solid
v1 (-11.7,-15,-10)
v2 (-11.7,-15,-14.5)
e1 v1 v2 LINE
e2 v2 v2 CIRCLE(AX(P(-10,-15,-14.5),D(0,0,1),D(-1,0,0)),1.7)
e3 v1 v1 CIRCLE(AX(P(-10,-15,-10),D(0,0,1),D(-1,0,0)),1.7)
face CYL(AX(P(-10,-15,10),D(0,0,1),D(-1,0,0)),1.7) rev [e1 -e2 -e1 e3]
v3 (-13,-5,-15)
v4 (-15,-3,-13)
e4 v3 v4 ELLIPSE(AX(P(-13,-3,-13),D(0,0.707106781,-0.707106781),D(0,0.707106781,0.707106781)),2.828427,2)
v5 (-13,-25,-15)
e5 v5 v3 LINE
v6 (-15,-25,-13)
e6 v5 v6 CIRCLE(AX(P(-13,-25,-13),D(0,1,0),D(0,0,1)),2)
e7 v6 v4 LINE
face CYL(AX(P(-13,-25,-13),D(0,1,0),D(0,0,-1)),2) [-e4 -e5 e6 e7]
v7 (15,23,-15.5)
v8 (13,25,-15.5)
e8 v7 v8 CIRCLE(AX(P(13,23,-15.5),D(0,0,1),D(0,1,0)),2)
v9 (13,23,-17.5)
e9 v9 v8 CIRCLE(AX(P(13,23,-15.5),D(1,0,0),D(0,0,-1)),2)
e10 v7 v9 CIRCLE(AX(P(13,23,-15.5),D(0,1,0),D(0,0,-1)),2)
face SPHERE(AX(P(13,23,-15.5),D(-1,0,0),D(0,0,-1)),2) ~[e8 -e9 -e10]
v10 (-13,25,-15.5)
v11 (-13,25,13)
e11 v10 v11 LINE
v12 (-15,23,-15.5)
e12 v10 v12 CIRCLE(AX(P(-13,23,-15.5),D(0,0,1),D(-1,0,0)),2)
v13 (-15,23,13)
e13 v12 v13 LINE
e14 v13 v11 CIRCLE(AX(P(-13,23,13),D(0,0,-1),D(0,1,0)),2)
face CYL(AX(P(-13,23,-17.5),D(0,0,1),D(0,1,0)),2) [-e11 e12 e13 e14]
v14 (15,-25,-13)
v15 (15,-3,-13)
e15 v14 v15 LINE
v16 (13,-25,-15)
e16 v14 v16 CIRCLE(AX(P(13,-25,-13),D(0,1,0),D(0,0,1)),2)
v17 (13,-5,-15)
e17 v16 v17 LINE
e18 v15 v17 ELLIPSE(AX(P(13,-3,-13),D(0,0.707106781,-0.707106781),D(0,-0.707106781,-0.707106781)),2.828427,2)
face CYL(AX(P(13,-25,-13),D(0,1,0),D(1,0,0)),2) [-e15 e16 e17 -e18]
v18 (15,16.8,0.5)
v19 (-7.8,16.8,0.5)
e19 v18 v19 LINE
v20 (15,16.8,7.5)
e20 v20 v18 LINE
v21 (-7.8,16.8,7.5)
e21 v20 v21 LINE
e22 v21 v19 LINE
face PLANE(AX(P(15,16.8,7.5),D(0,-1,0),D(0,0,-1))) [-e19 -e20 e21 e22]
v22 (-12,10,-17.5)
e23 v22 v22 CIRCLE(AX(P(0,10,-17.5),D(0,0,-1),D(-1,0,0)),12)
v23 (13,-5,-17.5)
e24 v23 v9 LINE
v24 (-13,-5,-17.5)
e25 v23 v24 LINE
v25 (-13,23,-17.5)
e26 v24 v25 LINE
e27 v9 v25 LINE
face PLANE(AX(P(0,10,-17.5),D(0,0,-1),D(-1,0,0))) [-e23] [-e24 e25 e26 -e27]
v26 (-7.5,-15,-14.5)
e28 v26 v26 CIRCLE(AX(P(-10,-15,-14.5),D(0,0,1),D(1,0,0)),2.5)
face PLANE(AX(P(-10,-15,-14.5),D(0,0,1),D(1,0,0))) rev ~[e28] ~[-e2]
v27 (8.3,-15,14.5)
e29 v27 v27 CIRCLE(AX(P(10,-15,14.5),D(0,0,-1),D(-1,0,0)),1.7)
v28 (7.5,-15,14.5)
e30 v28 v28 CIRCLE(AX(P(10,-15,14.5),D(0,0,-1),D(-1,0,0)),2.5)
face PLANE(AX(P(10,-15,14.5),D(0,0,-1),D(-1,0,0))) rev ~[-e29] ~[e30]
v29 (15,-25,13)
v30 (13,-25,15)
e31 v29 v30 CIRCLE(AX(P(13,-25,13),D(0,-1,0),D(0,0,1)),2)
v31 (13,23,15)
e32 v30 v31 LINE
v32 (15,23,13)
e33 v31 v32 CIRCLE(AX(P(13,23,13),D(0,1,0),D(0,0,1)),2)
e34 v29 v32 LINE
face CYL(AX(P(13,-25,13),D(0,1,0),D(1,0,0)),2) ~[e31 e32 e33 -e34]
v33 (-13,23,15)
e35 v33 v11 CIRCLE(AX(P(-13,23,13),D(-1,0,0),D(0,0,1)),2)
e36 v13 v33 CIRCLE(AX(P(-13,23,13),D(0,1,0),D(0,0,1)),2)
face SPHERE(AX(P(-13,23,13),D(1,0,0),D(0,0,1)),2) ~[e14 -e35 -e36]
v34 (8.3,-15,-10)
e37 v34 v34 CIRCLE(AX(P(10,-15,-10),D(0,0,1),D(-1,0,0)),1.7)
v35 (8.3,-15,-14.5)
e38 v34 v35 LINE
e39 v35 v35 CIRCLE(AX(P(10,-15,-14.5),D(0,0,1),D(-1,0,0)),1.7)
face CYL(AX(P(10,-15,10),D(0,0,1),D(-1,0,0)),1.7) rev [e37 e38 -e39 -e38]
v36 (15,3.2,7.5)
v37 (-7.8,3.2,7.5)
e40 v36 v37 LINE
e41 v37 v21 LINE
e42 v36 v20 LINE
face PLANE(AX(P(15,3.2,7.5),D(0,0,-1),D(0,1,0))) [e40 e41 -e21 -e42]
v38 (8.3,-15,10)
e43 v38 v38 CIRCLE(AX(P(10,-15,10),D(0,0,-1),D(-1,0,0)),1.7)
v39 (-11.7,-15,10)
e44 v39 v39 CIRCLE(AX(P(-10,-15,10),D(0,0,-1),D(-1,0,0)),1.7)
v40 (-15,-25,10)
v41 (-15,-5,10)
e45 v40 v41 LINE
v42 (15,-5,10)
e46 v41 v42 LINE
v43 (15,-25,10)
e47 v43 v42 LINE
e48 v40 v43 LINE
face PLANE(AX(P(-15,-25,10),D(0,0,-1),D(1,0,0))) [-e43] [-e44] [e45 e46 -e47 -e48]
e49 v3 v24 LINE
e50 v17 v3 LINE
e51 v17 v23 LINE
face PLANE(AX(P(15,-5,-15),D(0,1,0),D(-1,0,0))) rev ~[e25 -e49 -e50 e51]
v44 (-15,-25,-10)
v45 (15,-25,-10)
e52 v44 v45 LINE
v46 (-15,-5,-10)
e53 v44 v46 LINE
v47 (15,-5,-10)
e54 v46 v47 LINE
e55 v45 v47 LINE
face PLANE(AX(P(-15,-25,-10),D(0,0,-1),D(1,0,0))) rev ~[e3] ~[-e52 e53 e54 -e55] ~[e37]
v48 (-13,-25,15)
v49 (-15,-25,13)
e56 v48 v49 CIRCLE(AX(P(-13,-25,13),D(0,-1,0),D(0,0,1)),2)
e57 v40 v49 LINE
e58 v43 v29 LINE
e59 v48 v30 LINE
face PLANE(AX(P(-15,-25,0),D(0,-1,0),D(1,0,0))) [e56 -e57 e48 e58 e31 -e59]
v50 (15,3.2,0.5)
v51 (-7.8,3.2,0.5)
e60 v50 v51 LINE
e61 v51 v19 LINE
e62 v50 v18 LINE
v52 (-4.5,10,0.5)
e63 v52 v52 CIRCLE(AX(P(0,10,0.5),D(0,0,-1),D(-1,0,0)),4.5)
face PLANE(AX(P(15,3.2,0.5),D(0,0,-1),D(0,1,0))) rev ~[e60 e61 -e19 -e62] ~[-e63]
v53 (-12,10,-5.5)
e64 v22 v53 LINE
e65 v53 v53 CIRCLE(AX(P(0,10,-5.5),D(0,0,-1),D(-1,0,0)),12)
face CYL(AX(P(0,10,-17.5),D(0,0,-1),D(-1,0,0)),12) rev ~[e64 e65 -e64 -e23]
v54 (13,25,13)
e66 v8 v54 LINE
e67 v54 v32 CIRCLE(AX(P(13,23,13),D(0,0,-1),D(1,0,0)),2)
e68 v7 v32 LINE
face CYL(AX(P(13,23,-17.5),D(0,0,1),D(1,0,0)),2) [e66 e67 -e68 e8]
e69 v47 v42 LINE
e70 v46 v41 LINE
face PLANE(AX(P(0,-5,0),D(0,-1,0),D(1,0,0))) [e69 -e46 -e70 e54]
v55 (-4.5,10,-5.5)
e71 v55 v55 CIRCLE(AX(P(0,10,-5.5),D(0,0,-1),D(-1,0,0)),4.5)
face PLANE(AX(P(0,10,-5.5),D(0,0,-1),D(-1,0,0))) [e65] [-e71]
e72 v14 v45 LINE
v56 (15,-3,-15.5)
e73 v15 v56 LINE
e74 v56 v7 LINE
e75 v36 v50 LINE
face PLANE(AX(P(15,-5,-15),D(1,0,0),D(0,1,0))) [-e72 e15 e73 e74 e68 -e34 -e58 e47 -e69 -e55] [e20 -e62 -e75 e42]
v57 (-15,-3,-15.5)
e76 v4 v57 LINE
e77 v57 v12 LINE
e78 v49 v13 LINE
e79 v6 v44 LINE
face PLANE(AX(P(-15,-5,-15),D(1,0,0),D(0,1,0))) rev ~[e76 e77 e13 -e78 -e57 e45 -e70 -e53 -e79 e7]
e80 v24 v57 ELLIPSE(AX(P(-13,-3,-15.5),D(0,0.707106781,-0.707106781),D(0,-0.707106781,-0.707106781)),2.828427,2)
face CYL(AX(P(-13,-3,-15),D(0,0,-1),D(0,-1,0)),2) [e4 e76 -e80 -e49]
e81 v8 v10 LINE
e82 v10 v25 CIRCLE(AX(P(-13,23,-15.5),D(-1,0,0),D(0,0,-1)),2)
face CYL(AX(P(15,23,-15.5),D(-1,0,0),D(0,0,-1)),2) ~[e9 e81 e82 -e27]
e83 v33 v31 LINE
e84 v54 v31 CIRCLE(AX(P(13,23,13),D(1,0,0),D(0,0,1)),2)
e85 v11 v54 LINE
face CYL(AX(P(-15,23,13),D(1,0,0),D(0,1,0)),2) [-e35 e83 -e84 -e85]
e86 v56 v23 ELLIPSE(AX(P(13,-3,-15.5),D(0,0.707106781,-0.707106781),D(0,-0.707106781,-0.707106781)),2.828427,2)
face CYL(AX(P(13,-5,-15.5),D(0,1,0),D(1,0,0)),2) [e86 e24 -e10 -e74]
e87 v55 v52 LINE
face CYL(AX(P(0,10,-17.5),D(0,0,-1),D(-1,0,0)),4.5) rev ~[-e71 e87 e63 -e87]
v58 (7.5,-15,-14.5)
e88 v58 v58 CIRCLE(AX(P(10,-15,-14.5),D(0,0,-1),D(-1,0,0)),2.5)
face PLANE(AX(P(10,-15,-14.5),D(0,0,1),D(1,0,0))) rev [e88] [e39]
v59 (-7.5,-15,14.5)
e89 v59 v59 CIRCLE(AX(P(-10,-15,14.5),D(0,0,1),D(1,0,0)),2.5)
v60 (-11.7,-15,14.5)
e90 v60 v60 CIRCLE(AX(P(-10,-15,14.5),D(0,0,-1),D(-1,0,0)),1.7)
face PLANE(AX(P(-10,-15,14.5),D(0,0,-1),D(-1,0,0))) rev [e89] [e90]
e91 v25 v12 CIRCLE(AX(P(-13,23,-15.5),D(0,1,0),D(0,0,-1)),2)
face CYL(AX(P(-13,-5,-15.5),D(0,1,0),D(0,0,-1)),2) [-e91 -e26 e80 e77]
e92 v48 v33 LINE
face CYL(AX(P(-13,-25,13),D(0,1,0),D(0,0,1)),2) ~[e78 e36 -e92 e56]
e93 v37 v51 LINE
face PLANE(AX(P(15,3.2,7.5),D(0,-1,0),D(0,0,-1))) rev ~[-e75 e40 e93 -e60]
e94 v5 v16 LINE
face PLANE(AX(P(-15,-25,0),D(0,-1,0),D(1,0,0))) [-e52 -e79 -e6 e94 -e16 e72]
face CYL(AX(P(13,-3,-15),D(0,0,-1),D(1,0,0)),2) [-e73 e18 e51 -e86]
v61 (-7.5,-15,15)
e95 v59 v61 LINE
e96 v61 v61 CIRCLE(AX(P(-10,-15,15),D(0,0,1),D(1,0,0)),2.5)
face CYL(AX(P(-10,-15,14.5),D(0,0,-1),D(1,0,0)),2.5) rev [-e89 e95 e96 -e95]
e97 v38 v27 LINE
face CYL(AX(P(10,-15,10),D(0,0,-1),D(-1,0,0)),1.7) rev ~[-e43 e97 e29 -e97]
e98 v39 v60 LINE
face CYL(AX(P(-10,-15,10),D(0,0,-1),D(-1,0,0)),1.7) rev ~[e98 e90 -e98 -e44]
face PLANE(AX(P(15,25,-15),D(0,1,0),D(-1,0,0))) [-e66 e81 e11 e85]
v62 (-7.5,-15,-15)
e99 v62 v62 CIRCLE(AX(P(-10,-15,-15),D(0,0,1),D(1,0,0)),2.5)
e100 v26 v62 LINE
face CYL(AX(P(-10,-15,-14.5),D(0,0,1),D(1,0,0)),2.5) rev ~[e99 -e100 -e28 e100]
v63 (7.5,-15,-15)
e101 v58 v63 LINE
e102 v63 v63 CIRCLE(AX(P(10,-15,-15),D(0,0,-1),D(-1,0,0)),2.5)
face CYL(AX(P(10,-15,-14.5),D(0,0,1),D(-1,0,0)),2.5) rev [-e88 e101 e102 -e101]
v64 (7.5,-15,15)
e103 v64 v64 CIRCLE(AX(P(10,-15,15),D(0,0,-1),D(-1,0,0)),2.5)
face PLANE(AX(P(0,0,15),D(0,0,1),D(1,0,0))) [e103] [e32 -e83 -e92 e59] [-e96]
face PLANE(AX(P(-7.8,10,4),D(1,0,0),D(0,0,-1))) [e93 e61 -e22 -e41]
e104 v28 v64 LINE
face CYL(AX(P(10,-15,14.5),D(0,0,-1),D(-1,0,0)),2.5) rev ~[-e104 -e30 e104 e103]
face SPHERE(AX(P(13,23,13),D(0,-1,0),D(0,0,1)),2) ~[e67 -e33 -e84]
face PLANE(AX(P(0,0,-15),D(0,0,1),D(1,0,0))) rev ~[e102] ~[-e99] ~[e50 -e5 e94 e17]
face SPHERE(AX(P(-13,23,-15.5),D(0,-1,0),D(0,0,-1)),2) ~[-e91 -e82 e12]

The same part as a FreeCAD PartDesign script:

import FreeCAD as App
import Part
import Sketcher

V = App.Vector
Q = App.Units.Quantity


def edges_at(feature, points):
    """Names of the edges that pass closest to the given points."""
    edges = feature.Shape.Edges
    near = lambda p: min(range(len(edges)), key=lambda i: edges[i].distToShape(Part.Vertex(*p))[0])
    return sorted({f"Edge{near(p) + 1}" for p in points})


def add_polygon(sketch, points):
    """Adds a closed chain of lines whose ends are joined by coincident constraints."""
    first, n = sketch.GeometryCount, len(points)
    for a, b in zip(points, points[1:] + points[:1]):
        sketch.addGeometry(Part.LineSegment(App.Vector(*a, 0), App.Vector(*b, 0)), False)
    for i in range(n):
        sketch.addConstraint(Sketcher.Constraint("Coincident", first + i, 2, first + (i + 1) % n, 1))

doc = App.newDocument("Part")
params = doc.addObject("Spreadsheet::Sheet", "Params")
for row, (alias, value) in enumerate([
    ("sketch1_width", "30 mm"),
    ("sketch1_height", "50 mm"),
    ("pad1_length", "30 mm"),
    ("sketch2_width", "30 mm"),
    ("pad2_length", "2.5 mm"),
    ("sketch3_width", "30 mm"),
    ("sketch3_height", "20 mm"),
    ("pocket1_length", "20 mm"),
    ("sketch4_diameter", "3.4 mm"),
    ("sketch5_height", "7 mm"),
    ("sketch5_width", "13.6 mm"),
    ("pocket3_length", "22.8 mm"),
    ("sketch6_diameter", "5 mm"),
    ("pocket4_length", "0.5 mm"),
    ("sketch7_diameter", "5 mm"),
    ("pocket5_length", "0.5 mm"),
    ("fillet_radius", "2 mm"),
    ("sketch8_diameter", "24 mm"),
    ("sketch8_diameter2", "9 mm"),
    ("pocket6_length", "12 mm"),
    ("sketch9_diameter", "9 mm"),
], start=1):
    params.set(f"A{row}", alias)
    params.set(f"B{row}", "=" + value)
    params.setAlias(f"B{row}", alias)

body = doc.addObject("PartDesign::Body", "Body")

sketch1 = body.newObject("Sketcher::SketchObject", "Sketch")
sketch1.AttachmentSupport = (doc.getObject("XY_Plane"), [""])
sketch1.MapMode = "FlatFace"
add_polygon(sketch1, [(-15, 25), (-15, -25), (15, -25), (15, 25)])
sketch1.addConstraint(Sketcher.Constraint("Vertical", 0))
sketch1.addConstraint(Sketcher.Constraint("Horizontal", 1))
sketch1.addConstraint(Sketcher.Constraint("Vertical", 2))
sketch1.addConstraint(Sketcher.Constraint("Horizontal", 3))
sketch1.addConstraint(Sketcher.Constraint("Symmetric", 0, 2, 2, 2, -1, 1))
sketch1.addConstraint(Sketcher.Constraint("DistanceX", 1, 1, 1, 2, Q("30 mm")))
sketch1.addConstraint(Sketcher.Constraint("DistanceY", 0, 2, 0, 1, Q("50 mm")))
sketch1.setExpression("Constraints[9]", "Params.sketch1_width")
sketch1.setExpression("Constraints[10]", "Params.sketch1_height")
pad1 = body.newObject("PartDesign::Pad", "Pad")
pad1.Profile = sketch1
pad1.setExpression("Length", "Params.pad1_length")
pad1.Midplane = True

sketch2 = body.newObject("Sketcher::SketchObject", "Sketch001")
sketch2.AttachmentSupport = (doc.getObject("XY_Plane"), [""])
sketch2.MapMode = "FlatFace"
sketch2.AttachmentOffset = App.Placement(V(0, 0, -15), App.Rotation())
add_polygon(sketch2, [(15, 25), (15, -5), (-15, -5), (-15, 25)])
sketch2.addConstraint(Sketcher.Constraint("Vertical", 0))
sketch2.addConstraint(Sketcher.Constraint("Horizontal", 1))
sketch2.addConstraint(Sketcher.Constraint("Vertical", 2))
sketch2.addConstraint(Sketcher.Constraint("Horizontal", 3))
sketch2.addConstraint(Sketcher.Constraint("Equal", 3, 0))
sketch2.addConstraint(Sketcher.Constraint("DistanceX", 1, 2, 1, 1, Q("30 mm")))
sketch2.addConstraint(Sketcher.Constraint("DistanceX", -1, 1, 0, 2, Q("15 mm")))
sketch2.addConstraint(Sketcher.Constraint("DistanceY", 0, 2, -1, 1, Q("5 mm")))
sketch2.setExpression("Constraints[9]", "Params.sketch2_width")
pad2 = body.newObject("PartDesign::Pad", "Pad001")
pad2.Profile = sketch2
pad2.setExpression("Length", "Params.pad2_length")
pad2.Reversed = True

sketch3 = body.newObject("Sketcher::SketchObject", "Sketch002")
sketch3.AttachmentSupport = (doc.getObject("XZ_Plane"), [""])
sketch3.MapMode = "FlatFace"
sketch3.AttachmentOffset = App.Placement(V(0, 0, 25), App.Rotation())
add_polygon(sketch3, [(-15, 10), (-15, -10), (15, -10), (15, 10)])
sketch3.addConstraint(Sketcher.Constraint("Vertical", 0))
sketch3.addConstraint(Sketcher.Constraint("Horizontal", 1))
sketch3.addConstraint(Sketcher.Constraint("Vertical", 2))
sketch3.addConstraint(Sketcher.Constraint("Horizontal", 3))
sketch3.addConstraint(Sketcher.Constraint("Symmetric", 0, 2, 2, 2, -1, 1))
sketch3.addConstraint(Sketcher.Constraint("DistanceX", 1, 1, 1, 2, Q("30 mm")))
sketch3.addConstraint(Sketcher.Constraint("DistanceY", 0, 2, 0, 1, Q("20 mm")))
sketch3.setExpression("Constraints[9]", "Params.sketch3_width")
sketch3.setExpression("Constraints[10]", "Params.sketch3_height")
pocket1 = body.newObject("PartDesign::Pocket", "Pocket")
pocket1.Profile = sketch3
pocket1.setExpression("Length", "Params.pocket1_length")

sketch4 = body.newObject("Sketcher::SketchObject", "Sketch003")
sketch4.AttachmentSupport = (doc.getObject("XY_Plane"), [""])
sketch4.MapMode = "FlatFace"
sketch4.AttachmentOffset = App.Placement(V(0, 0, 10), App.Rotation())
sketch4.addGeometry(Part.Circle(V(10, -15, 0), V(0, 0, 1), 1.7), False)
sketch4.addGeometry(Part.Circle(V(-10, -15, 0), V(0, 0, 1), 1.7), False)
sketch4.addConstraint(Sketcher.Constraint("Equal", 0, 1))
sketch4.addConstraint(Sketcher.Constraint("Symmetric", 0, 3, 1, 3, -2))
sketch4.addConstraint(Sketcher.Constraint("Diameter", 0, Q("3.4 mm")))
sketch4.addConstraint(Sketcher.Constraint("DistanceX", -1, 1, 0, 3, Q("10 mm")))
sketch4.addConstraint(Sketcher.Constraint("DistanceY", 0, 3, -1, 1, Q("15 mm")))
sketch4.setExpression("Constraints[2]", "Params.sketch4_diameter")
pocket2 = body.newObject("PartDesign::Pocket", "Pocket001")
pocket2.Profile = sketch4
pocket2.Type = "ThroughAll"
pocket2.Midplane = True

sketch5 = body.newObject("Sketcher::SketchObject", "Sketch004")
sketch5.AttachmentSupport = (doc.getObject("YZ_Plane"), [""])
sketch5.MapMode = "FlatFace"
sketch5.AttachmentOffset = App.Placement(V(0, 0, 15), App.Rotation())
add_polygon(sketch5, [(17, 8), (3, 8), (3, 0), (17, 0)])
sketch5.addConstraint(Sketcher.Constraint("Horizontal", 0))
sketch5.addConstraint(Sketcher.Constraint("Vertical", 1))
sketch5.addConstraint(Sketcher.Constraint("Horizontal", 2))
sketch5.addConstraint(Sketcher.Constraint("Vertical", 3))
sketch5.addConstraint(Sketcher.Constraint("DistanceY", 1, 2, 1, 1, Q("7 mm")))
sketch5.addConstraint(Sketcher.Constraint("DistanceX", 0, 2, 0, 1, Q("13.6 mm")))
sketch5.addConstraint(Sketcher.Constraint("DistanceX", -1, 1, 0, 2, Q("3.2 mm")))
sketch5.addConstraint(Sketcher.Constraint("DistanceY", -1, 1, 0, 2, Q("7.5 mm")))
sketch5.setExpression("Constraints[8]", "Params.sketch5_height")
sketch5.setExpression("Constraints[9]", "Params.sketch5_width")
pocket3 = body.newObject("PartDesign::Pocket", "Pocket002")
pocket3.Profile = sketch5
pocket3.setExpression("Length", "Params.pocket3_length")

sketch6 = body.newObject("Sketcher::SketchObject", "Sketch005")
sketch6.AttachmentSupport = (doc.getObject("XY_Plane"), [""])
sketch6.MapMode = "FlatFace"
sketch6.AttachmentOffset = App.Placement(V(0, 0, 14.5), App.Rotation())
sketch6.addGeometry(Part.Circle(V(10, -15, 0), V(0, 0, 1), 2.5), False)
sketch6.addConstraint(Sketcher.Constraint("Diameter", 0, Q("5 mm")))
sketch6.addConstraint(Sketcher.Constraint("DistanceX", -1, 1, 0, 3, Q("10 mm")))
sketch6.addConstraint(Sketcher.Constraint("DistanceY", 0, 3, -1, 1, Q("15 mm")))
sketch6.setExpression("Constraints[0]", "Params.sketch6_diameter")
pocket4 = body.newObject("PartDesign::Pocket", "Pocket003")
pocket4.Profile = sketch6
pocket4.setExpression("Length", "Params.pocket4_length")
pocket4.Reversed = True
doc.recompute()

mirrored = body.newObject("PartDesign::Mirrored", "Mirrored")
mirrored.Originals = [pocket4]
mirrored.MirrorPlane = (doc.getObject("YZ_Plane"), [""])
body.Tip = mirrored
doc.recompute()

mirrored2 = body.newObject("PartDesign::Mirrored", "Mirrored001")
mirrored2.Originals = [pocket4]
mirrored2.MirrorPlane = (doc.getObject("XY_Plane"), [""])
body.Tip = mirrored2

sketch7 = body.newObject("Sketcher::SketchObject", "Sketch006")
sketch7.AttachmentSupport = (doc.getObject("XY_Plane"), [""])
sketch7.MapMode = "FlatFace"
sketch7.AttachmentOffset = App.Placement(V(0, 0, -14.5), App.Rotation())
sketch7.addGeometry(Part.Circle(V(-10, -15, 0), V(0, 0, 1), 2.5), False)
sketch7.addConstraint(Sketcher.Constraint("Diameter", 0, Q("5 mm")))
sketch7.addConstraint(Sketcher.Constraint("DistanceX", 0, 3, -1, 1, Q("10 mm")))
sketch7.addConstraint(Sketcher.Constraint("DistanceY", 0, 3, -1, 1, Q("15 mm")))
sketch7.setExpression("Constraints[0]", "Params.sketch7_diameter")
pocket5 = body.newObject("PartDesign::Pocket", "Pocket004")
pocket5.Profile = sketch7
pocket5.setExpression("Length", "Params.pocket5_length")
doc.recompute()

fillet = body.newObject("PartDesign::Fillet", "Fillet")
fillet.Base = (pocket5, edges_at(pocket5, [
    (15, 0, 15),
    (0, 25, 15),
    (-15, -15, -15),
    (-15, -5, -16.25),
    (15, -5, -16.25),
    (-15, 10, -17.5),
    (0, 25, -17.5),
    (15, 10, -17.5),
    (-15, 0, 15),
    (15, -15, -15),
    (-15, 25, -1.25),
    (15, 25, -1.25),
]))
fillet.setExpression("Radius", "Params.fillet_radius")

sketch8 = body.newObject("Sketcher::SketchObject", "Sketch007")
sketch8.AttachmentSupport = (doc.getObject("XY_Plane"), [""])
sketch8.MapMode = "FlatFace"
sketch8.AttachmentOffset = App.Placement(V(0, 0, -17.5), App.Rotation())
sketch8.addGeometry(Part.Circle(V(0, 10, 0), V(0, 0, 1), 12), False)
sketch8.addGeometry(Part.Circle(V(0, 10, 0), V(0, 0, 1), 4.5), False)
sketch8.addConstraint(Sketcher.Constraint("Coincident", 1, 3, 0, 3))
sketch8.addConstraint(Sketcher.Constraint("PointOnObject", 0, 3, -2))
sketch8.addConstraint(Sketcher.Constraint("Diameter", 0, Q("24 mm")))
sketch8.addConstraint(Sketcher.Constraint("Diameter", 1, Q("9 mm")))
sketch8.addConstraint(Sketcher.Constraint("DistanceY", -1, 1, 0, 3, Q("10 mm")))
sketch8.setExpression("Constraints[2]", "Params.sketch8_diameter")
sketch8.setExpression("Constraints[3]", "Params.sketch8_diameter2")
pocket6 = body.newObject("PartDesign::Pocket", "Pocket005")
pocket6.Profile = sketch8
pocket6.setExpression("Length", "Params.pocket6_length")
pocket6.Reversed = True

sketch9 = body.newObject("Sketcher::SketchObject", "Sketch008")
sketch9.AttachmentSupport = (doc.getObject("XY_Plane"), [""])
sketch9.MapMode = "FlatFace"
sketch9.AttachmentOffset = App.Placement(V(0, 0, -17.5), App.Rotation())
sketch9.addGeometry(Part.Circle(V(0, 10, 0), V(0, 0, 1), 4.5), False)
sketch9.addConstraint(Sketcher.Constraint("PointOnObject", 0, 3, -2))
sketch9.addConstraint(Sketcher.Constraint("Diameter", 0, Q("9 mm")))
sketch9.addConstraint(Sketcher.Constraint("DistanceY", -1, 1, 0, 3, Q("10 mm")))
sketch9.setExpression("Constraints[1]", "Params.sketch9_diameter")
pocket7 = body.newObject("PartDesign::Pocket", "Pocket006")
pocket7.Profile = sketch9
pocket7.Type = "UpToFirst"
pocket7.Reversed = True

doc.recompute()
